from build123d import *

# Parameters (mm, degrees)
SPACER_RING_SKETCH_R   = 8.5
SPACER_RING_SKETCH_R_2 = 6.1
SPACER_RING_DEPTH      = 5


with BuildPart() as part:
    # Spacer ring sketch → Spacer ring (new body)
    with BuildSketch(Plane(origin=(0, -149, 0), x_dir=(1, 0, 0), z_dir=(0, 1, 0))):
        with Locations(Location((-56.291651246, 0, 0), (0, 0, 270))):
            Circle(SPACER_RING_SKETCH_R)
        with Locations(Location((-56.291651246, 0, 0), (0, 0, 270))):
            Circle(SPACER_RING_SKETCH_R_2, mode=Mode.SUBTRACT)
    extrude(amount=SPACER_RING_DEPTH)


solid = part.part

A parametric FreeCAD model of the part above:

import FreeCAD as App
import Part
import Sketcher
from FreeCAD import Vector
Q = App.Units.Quantity

doc = App.newDocument("Part")
body = doc.addObject("PartDesign::Body", "Body")

# Sketch on XZ plane
sketch1 = body.newObject("Sketcher::SketchObject", "Sketch")
sketch1.AttachmentSupport = (doc.getObject("XZ_Plane"), [""])
sketch1.MapMode = "FlatFace"
sketch1.AttachmentOffset = App.Placement(Vector(0, 0, 149), App.Rotation())
sketch1.addGeometry([
    Part.Circle(Vector(-56, 0, 0), Vector(0, 0, 1), 8),
    Part.Circle(Vector(-56, 0, 0), Vector(0, 0, 1), 6),
], False)
sketch1.addConstraint([
    Sketcher.Constraint("Coincident", 1, 3, 0, 3),
    Sketcher.Constraint("PointOnObject", 0, 3, -1),
    Sketcher.Constraint("Diameter", 0, Q("17 mm")),
    Sketcher.Constraint("Diameter", 1, Q("12.2 mm")),
    Sketcher.Constraint("DistanceX", 0, 3, -1, 1, Q("56.291651 mm")),
])
pad1 = body.newObject("PartDesign::Pad", "Pad")
pad1.Profile = sketch1
pad1.Length = 5
pad1.Reversed = True

doc.recompute()
